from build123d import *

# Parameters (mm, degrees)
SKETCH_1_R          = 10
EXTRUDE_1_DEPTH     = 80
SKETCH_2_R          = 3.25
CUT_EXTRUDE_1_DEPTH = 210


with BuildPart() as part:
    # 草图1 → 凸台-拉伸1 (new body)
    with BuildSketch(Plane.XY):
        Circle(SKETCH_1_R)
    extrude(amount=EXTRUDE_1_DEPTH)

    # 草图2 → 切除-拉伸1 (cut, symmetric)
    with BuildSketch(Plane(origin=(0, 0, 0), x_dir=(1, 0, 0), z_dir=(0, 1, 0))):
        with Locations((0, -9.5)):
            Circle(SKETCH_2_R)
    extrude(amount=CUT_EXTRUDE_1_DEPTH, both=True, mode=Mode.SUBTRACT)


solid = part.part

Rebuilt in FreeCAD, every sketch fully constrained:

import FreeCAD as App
import Part
import Sketcher

V = App.Vector

doc = App.newDocument("Part")
params = doc.addObject("Spreadsheet::Sheet", "Params")
for row, (alias, value) in enumerate([
    ("sketch1_diameter", "20 mm"),
    ("pad1_length", "80 mm"),
    ("sketch2_diameter", "6.5 mm"),
    ("pocket1_length", "420 mm"),
], start=1):
    params.set(f"A{row}", alias)
    params.set(f"B{row}", "=" + value)
    params.setAlias(f"B{row}", alias)

body = doc.addObject("PartDesign::Body", "Body")

# Sketch on XY plane
sketch1 = body.newObject("Sketcher::SketchObject", "Sketch")
sketch1.AttachmentSupport = (doc.getObject("XY_Plane"), [""])
sketch1.MapMode = "FlatFace"
sketch1.addGeometry(Part.Circle(V(0, 0, 0), V(0, 0, 1), 10), False)
sketch1.addConstraint(Sketcher.Constraint("Coincident", 0, 3, -1, 1))
sketch1.addConstraint(Sketcher.Constraint("Diameter", 0, 20.0))
sketch1.setExpression("Constraints[1]", "Params.sketch1_diameter")
pad1 = body.newObject("PartDesign::Pad", "Pad")
pad1.Profile = sketch1
pad1.setExpression("Length", "Params.pad1_length")

# Sketch on XZ plane
sketch2 = body.newObject("Sketcher::SketchObject", "Sketch001")
sketch2.AttachmentSupport = (doc.getObject("XZ_Plane"), [""])
sketch2.MapMode = "FlatFace"
sketch2.addGeometry(Part.Circle(V(0, 9.5, 0), V(0, 0, 1), 3.2), False)
sketch2.addConstraint(Sketcher.Constraint("PointOnObject", 0, 3, -2))
sketch2.addConstraint(Sketcher.Constraint("Diameter", 0, 6.5))
sketch2.addConstraint(Sketcher.Constraint("DistanceY", -1, 1, 0, 3, 9.5))
sketch2.setExpression("Constraints[1]", "Params.sketch2_diameter")
pocket1 = body.newObject("PartDesign::Pocket", "Pocket")
pocket1.Profile = sketch2
pocket1.setExpression("Length", "Params.pocket1_length")
pocket1.Midplane = True

doc.recompute()
